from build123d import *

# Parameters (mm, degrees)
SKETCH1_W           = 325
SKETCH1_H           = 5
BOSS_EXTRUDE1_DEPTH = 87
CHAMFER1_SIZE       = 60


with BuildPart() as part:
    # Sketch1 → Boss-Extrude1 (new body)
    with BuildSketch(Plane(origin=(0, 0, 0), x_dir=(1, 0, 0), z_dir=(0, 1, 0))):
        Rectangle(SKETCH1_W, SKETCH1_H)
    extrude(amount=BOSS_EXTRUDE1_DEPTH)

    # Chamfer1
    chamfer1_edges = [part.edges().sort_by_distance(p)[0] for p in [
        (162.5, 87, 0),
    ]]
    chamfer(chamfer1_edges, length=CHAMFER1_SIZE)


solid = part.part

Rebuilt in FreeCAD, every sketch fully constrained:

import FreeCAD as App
import Part
import Sketcher

V = App.Vector


def edges_at(feature, points):
    """Names of the edges that pass closest to the given points."""
    edges = feature.Shape.Edges
    near = lambda p: min(range(len(edges)), key=lambda i: edges[i].distToShape(Part.Vertex(*p))[0])
    return sorted({f"Edge{near(p) + 1}" for p in points})

doc = App.newDocument("Part")
body = doc.addObject("PartDesign::Body", "Body")

# Sketch on XZ plane
sketch1 = body.newObject("Sketcher::SketchObject", "Sketch")
sketch1.AttachmentSupport = (doc.getObject("XZ_Plane"), [""])
sketch1.MapMode = "FlatFace"
sketch1.addGeometry(Part.LineSegment(V(-162, -2, 0), V(-162, 2, 0)), False)
sketch1.addGeometry(Part.LineSegment(V(-162, 2, 0), V(162, 2, 0)), False)
sketch1.addGeometry(Part.LineSegment(V(162, 2, 0), V(162, -2, 0)), False)
sketch1.addGeometry(Part.LineSegment(V(162, -2, 0), V(-162, -2, 0)), False)
sketch1.addConstraint(Sketcher.Constraint("Coincident", 0, 2, 1, 1))
sketch1.addConstraint(Sketcher.Constraint("Coincident", 1, 2, 2, 1))
sketch1.addConstraint(Sketcher.Constraint("Coincident", 2, 2, 3, 1))
sketch1.addConstraint(Sketcher.Constraint("Coincident", 3, 2, 0, 1))
sketch1.addConstraint(Sketcher.Constraint("Vertical", 0))
sketch1.addConstraint(Sketcher.Constraint("Horizontal", 1))
sketch1.addConstraint(Sketcher.Constraint("Vertical", 2))
sketch1.addConstraint(Sketcher.Constraint("Horizontal", 3))
sketch1.addConstraint(Sketcher.Constraint("Symmetric", 0, 2, 2, 2, -1, 1))
sketch1.addConstraint(Sketcher.Constraint("DistanceX", 1, 1, 1, 2, 325.0))
sketch1.addConstraint(Sketcher.Constraint("DistanceY", 0, 1, 0, 2, 5.0))
pad1 = body.newObject("PartDesign::Pad", "Pad")
pad1.Profile = sketch1
pad1.Length = 87
pad1.Reversed = True
doc.recompute()

chamfer = body.newObject("PartDesign::Chamfer", "Chamfer")
chamfer.Base = (pad1, edges_at(pad1, [(162.5, 87, 0)]))
chamfer.Size = 60

doc.recompute()
